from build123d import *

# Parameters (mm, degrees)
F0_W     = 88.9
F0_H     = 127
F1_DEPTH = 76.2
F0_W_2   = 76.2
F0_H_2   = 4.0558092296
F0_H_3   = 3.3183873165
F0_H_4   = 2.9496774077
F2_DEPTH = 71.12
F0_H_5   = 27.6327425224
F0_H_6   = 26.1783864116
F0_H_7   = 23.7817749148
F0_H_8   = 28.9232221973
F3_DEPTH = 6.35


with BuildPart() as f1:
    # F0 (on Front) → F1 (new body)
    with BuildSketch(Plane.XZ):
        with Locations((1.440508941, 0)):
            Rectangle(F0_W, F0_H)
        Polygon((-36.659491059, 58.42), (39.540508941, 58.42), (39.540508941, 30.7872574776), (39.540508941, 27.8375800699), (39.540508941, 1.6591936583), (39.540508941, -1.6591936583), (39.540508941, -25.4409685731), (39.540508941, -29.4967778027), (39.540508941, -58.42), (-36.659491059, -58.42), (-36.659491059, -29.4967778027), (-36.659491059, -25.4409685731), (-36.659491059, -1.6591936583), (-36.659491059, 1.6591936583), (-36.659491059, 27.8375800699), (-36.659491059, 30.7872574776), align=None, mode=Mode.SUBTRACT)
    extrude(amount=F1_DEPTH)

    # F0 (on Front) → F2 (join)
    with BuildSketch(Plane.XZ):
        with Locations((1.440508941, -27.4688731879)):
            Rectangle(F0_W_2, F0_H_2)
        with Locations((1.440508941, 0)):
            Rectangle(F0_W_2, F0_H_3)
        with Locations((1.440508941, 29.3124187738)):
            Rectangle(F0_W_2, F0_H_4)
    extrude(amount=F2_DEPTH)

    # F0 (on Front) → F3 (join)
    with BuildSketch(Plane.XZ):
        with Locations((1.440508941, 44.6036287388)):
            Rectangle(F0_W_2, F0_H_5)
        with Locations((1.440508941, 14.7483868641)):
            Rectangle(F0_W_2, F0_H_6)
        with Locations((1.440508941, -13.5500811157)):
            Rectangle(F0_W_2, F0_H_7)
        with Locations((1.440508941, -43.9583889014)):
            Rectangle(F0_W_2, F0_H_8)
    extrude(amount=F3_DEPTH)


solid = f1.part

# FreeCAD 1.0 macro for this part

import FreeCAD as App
import Part
import Sketcher
Q = App.Units.Quantity

doc = App.newDocument("Part")
body = doc.addObject("PartDesign::Body", "Body")

# Sketch on XZ plane
sketch1 = body.newObject("Sketcher::SketchObject", "Sketch")
sketch1.AttachmentSupport = (doc.getObject("XZ_Plane"), [""])
sketch1.MapMode = "FlatFace"
sketch1.addGeometry(Part.LineSegment(App.Vector(-43, 64, 0), App.Vector(-43, -64, 0)), False)
sketch1.addGeometry(Part.LineSegment(App.Vector(-43, -64, 0), App.Vector(46, -64, 0)), False)
sketch1.addGeometry(Part.LineSegment(App.Vector(46, -64, 0), App.Vector(46, 64, 0)), False)
sketch1.addGeometry(Part.LineSegment(App.Vector(46, 64, 0), App.Vector(-43, 64, 0)), False)
sketch1.addGeometry(Part.LineSegment(App.Vector(-37, -58, 0), App.Vector(-37, 58, 0)), False)
sketch1.addGeometry(Part.LineSegment(App.Vector(-37, 58, 0), App.Vector(40, 58, 0)), False)
sketch1.addGeometry(Part.LineSegment(App.Vector(40, 58, 0), App.Vector(40, -58, 0)), False)
sketch1.addGeometry(Part.LineSegment(App.Vector(40, -58, 0), App.Vector(-37, -58, 0)), False)
sketch1.addConstraint(Sketcher.Constraint("Coincident", 0, 2, 1, 1))
sketch1.addConstraint(Sketcher.Constraint("Coincident", 1, 2, 2, 1))
sketch1.addConstraint(Sketcher.Constraint("Coincident", 2, 2, 3, 1))
sketch1.addConstraint(Sketcher.Constraint("Coincident", 3, 2, 0, 1))
sketch1.addConstraint(Sketcher.Constraint("Coincident", 4, 2, 5, 1))
sketch1.addConstraint(Sketcher.Constraint("Coincident", 5, 2, 6, 1))
sketch1.addConstraint(Sketcher.Constraint("Coincident", 6, 2, 7, 1))
sketch1.addConstraint(Sketcher.Constraint("Coincident", 7, 2, 4, 1))
sketch1.addConstraint(Sketcher.Constraint("Vertical", 0))
sketch1.addConstraint(Sketcher.Constraint("Horizontal", 1))
sketch1.addConstraint(Sketcher.Constraint("Vertical", 2))
sketch1.addConstraint(Sketcher.Constraint("Horizontal", 3))
sketch1.addConstraint(Sketcher.Constraint("Vertical", 4))
sketch1.addConstraint(Sketcher.Constraint("Horizontal", 5))
sketch1.addConstraint(Sketcher.Constraint("Vertical", 6))
sketch1.addConstraint(Sketcher.Constraint("Horizontal", 7))
sketch1.addConstraint(Sketcher.Constraint("DistanceX", 5, 1, 5, 2, Q("3 in")))
sketch1.addConstraint(Sketcher.Constraint("DistanceY", 0, 2, 0, 1, Q("5 in")))
sketch1.addConstraint(Sketcher.Constraint("DistanceX", 1, 1, 1, 2, Q("3.5 in")))
sketch1.addConstraint(Sketcher.Constraint("DistanceY", 4, 1, 4, 2, Q("4.6 in")))
sketch1.addConstraint(Sketcher.Constraint("DistanceY", 0, 2, -1, 1, Q("2.5 in")))
sketch1.addConstraint(Sketcher.Constraint("DistanceY", -1, 1, 4, 2, Q("2.3 in")))
sketch1.addConstraint(Sketcher.Constraint("DistanceX", 3, 2, 4, 2, Q("0.25 in")))
sketch1.addConstraint(Sketcher.Constraint("DistanceX", 0, 2, -1, 1, Q("43.009491 mm")))
pad1 = body.newObject("PartDesign::Pad", "Pad")
pad1.Profile = sketch1
pad1.Length = Q("3 in")

# Sketch on XZ plane
sketch2 = body.newObject("Sketcher::SketchObject", "Sketch001")
sketch2.AttachmentSupport = (doc.getObject("XZ_Plane"), [""])
sketch2.MapMode = "FlatFace"
sketch2.addGeometry(Part.LineSegment(App.Vector(-36.7, -25.4, 0), App.Vector(-36.7, -29.5, 0)), False)
sketch2.addGeometry(Part.LineSegment(App.Vector(-36.7, -29.5, 0), App.Vector(39.5, -29.5, 0)), False)
sketch2.addGeometry(Part.LineSegment(App.Vector(39.5, -29.5, 0), App.Vector(39.5, -25.4, 0)), False)
sketch2.addGeometry(Part.LineSegment(App.Vector(39.5, -25.4, 0), App.Vector(-36.7, -25.4, 0)), False)
sketch2.addGeometry(Part.LineSegment(App.Vector(-36.7, 1.7, 0), App.Vector(-36.7, -1.7, 0)), False)
sketch2.addGeometry(Part.LineSegment(App.Vector(-36.7, -1.7, 0), App.Vector(39.5, -1.7, 0)), False)
sketch2.addGeometry(Part.LineSegment(App.Vector(39.5, -1.7, 0), App.Vector(39.5, 1.7, 0)), False)
sketch2.addGeometry(Part.LineSegment(App.Vector(39.5, 1.7, 0), App.Vector(-36.7, 1.7, 0)), False)
sketch2.addGeometry(Part.LineSegment(App.Vector(-36.7, 30.8, 0), App.Vector(-36.7, 27.8, 0)), False)
sketch2.addGeometry(Part.LineSegment(App.Vector(-36.7, 27.8, 0), App.Vector(39.5, 27.8, 0)), False)
sketch2.addGeometry(Part.LineSegment(App.Vector(39.5, 27.8, 0), App.Vector(39.5, 30.8, 0)), False)
sketch2.addGeometry(Part.LineSegment(App.Vector(39.5, 30.8, 0), App.Vector(-36.7, 30.8, 0)), False)
sketch2.addConstraint(Sketcher.Constraint("Coincident", 0, 2, 1, 1))
sketch2.addConstraint(Sketcher.Constraint("Coincident", 1, 2, 2, 1))
sketch2.addConstraint(Sketcher.Constraint("Coincident", 2, 2, 3, 1))
sketch2.addConstraint(Sketcher.Constraint("Coincident", 3, 2, 0, 1))
sketch2.addConstraint(Sketcher.Constraint("Coincident", 4, 2, 5, 1))
sketch2.addConstraint(Sketcher.Constraint("Coincident", 5, 2, 6, 1))
sketch2.addConstraint(Sketcher.Constraint("Coincident", 6, 2, 7, 1))
sketch2.addConstraint(Sketcher.Constraint("Coincident", 7, 2, 4, 1))
sketch2.addConstraint(Sketcher.Constraint("Coincident", 8, 2, 9, 1))
sketch2.addConstraint(Sketcher.Constraint("Coincident", 9, 2, 10, 1))
sketch2.addConstraint(Sketcher.Constraint("Coincident", 10, 2, 11, 1))
sketch2.addConstraint(Sketcher.Constraint("Coincident", 11, 2, 8, 1))
sketch2.addConstraint(Sketcher.Constraint("Vertical", 0))
sketch2.addConstraint(Sketcher.Constraint("Horizontal", 1))
sketch2.addConstraint(Sketcher.Constraint("Vertical", 2))
sketch2.addConstraint(Sketcher.Constraint("Horizontal", 3))
sketch2.addConstraint(Sketcher.Constraint("Vertical", 4))
sketch2.addConstraint(Sketcher.Constraint("Horizontal", 5))
sketch2.addConstraint(Sketcher.Constraint("Vertical", 6))
sketch2.addConstraint(Sketcher.Constraint("Horizontal", 7))
sketch2.addConstraint(Sketcher.Constraint("Vertical", 8))
sketch2.addConstraint(Sketcher.Constraint("Horizontal", 9))
sketch2.addConstraint(Sketcher.Constraint("Vertical", 10))
sketch2.addConstraint(Sketcher.Constraint("Horizontal", 11))
sketch2.addConstraint(Sketcher.Constraint("Vertical", 3, 2, 4, 2))
sketch2.addConstraint(Sketcher.Constraint("Vertical", 2, 2, 5, 2))
sketch2.addConstraint(Sketcher.Constraint("Vertical", 7, 2, 8, 2))
sketch2.addConstraint(Sketcher.Constraint("Vertical", 6, 2, 9, 2))
sketch2.addConstraint(Sketcher.Constraint("DistanceX", 1, 1, 1, 2, Q("3 in")))
sketch2.addConstraint(Sketcher.Constraint("DistanceY", 0, 2, 0, 1, Q("4.055809 mm")))
sketch2.addConstraint(Sketcher.Constraint("DistanceY", 4, 2, 4, 1, Q("3.318387 mm")))
sketch2.addConstraint(Sketcher.Constraint("DistanceY", 8, 2, 8, 1, Q("2.949677 mm")))
sketch2.addConstraint(Sketcher.Constraint("DistanceX", 0, 2, -1, 1, Q("36.659491 mm")))
sketch2.addConstraint(Sketcher.Constraint("DistanceY", 2, 2, -1, 1, Q("25.440969 mm")))
sketch2.addConstraint(Sketcher.Constraint("DistanceY", -1, 1, 8, 2, Q("27.83758 mm")))
sketch2.addConstraint(Sketcher.Constraint("DistanceY", 1, 2, 6, 2, Q("31.155971 mm")))
pad2 = body.newObject("PartDesign::Pad", "Pad001")
pad2.Profile = sketch2
pad2.Length = Q("2.8 in")

# Sketch on XZ plane
sketch3 = body.newObject("Sketcher::SketchObject", "Sketch002")
sketch3.AttachmentSupport = (doc.getObject("XZ_Plane"), [""])
sketch3.MapMode = "FlatFace"
sketch3.addGeometry(Part.LineSegment(App.Vector(-37, 58, 0), App.Vector(-37, 31, 0)), False)
sketch3.addGeometry(Part.LineSegment(App.Vector(-37, 31, 0), App.Vector(40, 31, 0)), False)
sketch3.addGeometry(Part.LineSegment(App.Vector(40, 31, 0), App.Vector(40, 58, 0)), False)
sketch3.addGeometry(Part.LineSegment(App.Vector(40, 58, 0), App.Vector(-37, 58, 0)), False)
sketch3.addGeometry(Part.LineSegment(App.Vector(-37, 28, 0), App.Vector(-37, 2, 0)), False)
sketch3.addGeometry(Part.LineSegment(App.Vector(-37, 2, 0), App.Vector(40, 2, 0)), False)
sketch3.addGeometry(Part.LineSegment(App.Vector(40, 2, 0), App.Vector(40, 28, 0)), False)
sketch3.addGeometry(Part.LineSegment(App.Vector(40, 28, 0), App.Vector(-37, 28, 0)), False)
sketch3.addGeometry(Part.LineSegment(App.Vector(-37, -2, 0), App.Vector(-37, -25, 0)), False)
sketch3.addGeometry(Part.LineSegment(App.Vector(-37, -25, 0), App.Vector(40, -25, 0)), False)
sketch3.addGeometry(Part.LineSegment(App.Vector(40, -25, 0), App.Vector(40, -2, 0)), False)
sketch3.addGeometry(Part.LineSegment(App.Vector(40, -2, 0), App.Vector(-37, -2, 0)), False)
sketch3.addGeometry(Part.LineSegment(App.Vector(-37, -29, 0), App.Vector(-37, -58, 0)), False)
sketch3.addGeometry(Part.LineSegment(App.Vector(-37, -58, 0), App.Vector(40, -58, 0)), False)
sketch3.addGeometry(Part.LineSegment(App.Vector(40, -58, 0), App.Vector(40, -29, 0)), False)
sketch3.addGeometry(Part.LineSegment(App.Vector(40, -29, 0), App.Vector(-37, -29, 0)), False)
sketch3.addConstraint(Sketcher.Constraint("Coincident", 0, 2, 1, 1))
sketch3.addConstraint(Sketcher.Constraint("Coincident", 1, 2, 2, 1))
sketch3.addConstraint(Sketcher.Constraint("Coincident", 2, 2, 3, 1))
sketch3.addConstraint(Sketcher.Constraint("Coincident", 3, 2, 0, 1))
sketch3.addConstraint(Sketcher.Constraint("Coincident", 4, 2, 5, 1))
sketch3.addConstraint(Sketcher.Constraint("Coincident", 5, 2, 6, 1))
sketch3.addConstraint(Sketcher.Constraint("Coincident", 6, 2, 7, 1))
sketch3.addConstraint(Sketcher.Constraint("Coincident", 7, 2, 4, 1))
sketch3.addConstraint(Sketcher.Constraint("Coincident", 8, 2, 9, 1))
sketch3.addConstraint(Sketcher.Constraint("Coincident", 9, 2, 10, 1))
sketch3.addConstraint(Sketcher.Constraint("Coincident", 10, 2, 11, 1))
sketch3.addConstraint(Sketcher.Constraint("Coincident", 11, 2, 8, 1))
sketch3.addConstraint(Sketcher.Constraint("Coincident", 12, 2, 13, 1))
sketch3.addConstraint(Sketcher.Constraint("Coincident", 13, 2, 14, 1))
sketch3.addConstraint(Sketcher.Constraint("Coincident", 14, 2, 15, 1))
sketch3.addConstraint(Sketcher.Constraint("Coincident", 15, 2, 12, 1))
sketch3.addConstraint(Sketcher.Constraint("Vertical", 0))
sketch3.addConstraint(Sketcher.Constraint("Horizontal", 1))
sketch3.addConstraint(Sketcher.Constraint("Vertical", 2))
sketch3.addConstraint(Sketcher.Constraint("Horizontal", 3))
sketch3.addConstraint(Sketcher.Constraint("Vertical", 4))
sketch3.addConstraint(Sketcher.Constraint("Horizontal", 5))
sketch3.addConstraint(Sketcher.Constraint("Vertical", 6))
sketch3.addConstraint(Sketcher.Constraint("Horizontal", 7))
sketch3.addConstraint(Sketcher.Constraint("Vertical", 8))
sketch3.addConstraint(Sketcher.Constraint("Horizontal", 9))
sketch3.addConstraint(Sketcher.Constraint("Vertical", 10))
sketch3.addConstraint(Sketcher.Constraint("Horizontal", 11))
sketch3.addConstraint(Sketcher.Constraint("Vertical", 12))
sketch3.addConstraint(Sketcher.Constraint("Horizontal", 13))
sketch3.addConstraint(Sketcher.Constraint("Vertical", 14))
sketch3.addConstraint(Sketcher.Constraint("Horizontal", 15))
sketch3.addConstraint(Sketcher.Constraint("Symmetric", 5, 2, 10, 2, -1))
sketch3.addConstraint(Sketcher.Constraint("Symmetric", 3, 2, 12, 2, -1))
sketch3.addConstraint(Sketcher.Constraint("Vertical", 3, 2, 4, 2))
sketch3.addConstraint(Sketcher.Constraint("Vertical", 2, 2, 5, 2))
sketch3.addConstraint(Sketcher.Constraint("Vertical", 7, 2, 8, 2))
sketch3.addConstraint(Sketcher.Constraint("Vertical", 10, 2, 13, 2))
sketch3.addConstraint(Sketcher.Constraint("DistanceX", 1, 1, 1, 2, Q("3 in")))
sketch3.addConstraint(Sketcher.Constraint("DistanceY", -1, 1, 2, 2, Q("2.3 in")))
sketch3.addConstraint(Sketcher.Constraint("DistanceY", 0, 2, 0, 1, Q("27.632743 mm")))
sketch3.addConstraint(Sketcher.Constraint("DistanceY", 4, 2, 4, 1, Q("26.178386 mm")))
sketch3.addConstraint(Sketcher.Constraint("DistanceY", 8, 2, 8, 1, Q("23.781775 mm")))
sketch3.addConstraint(Sketcher.Constraint("DistanceY", 12, 2, 12, 1, Q("28.923222 mm")))
sketch3.addConstraint(Sketcher.Constraint("DistanceX", 0, 2, -1, 1, Q("36.659491 mm")))
sketch3.addConstraint(Sketcher.Constraint("DistanceY", -1, 1, 6, 2, Q("27.83758 mm")))
pad3 = body.newObject("PartDesign::Pad", "Pad002")
pad3.Profile = sketch3
pad3.Length = Q("0.25 in")

doc.recompute()
